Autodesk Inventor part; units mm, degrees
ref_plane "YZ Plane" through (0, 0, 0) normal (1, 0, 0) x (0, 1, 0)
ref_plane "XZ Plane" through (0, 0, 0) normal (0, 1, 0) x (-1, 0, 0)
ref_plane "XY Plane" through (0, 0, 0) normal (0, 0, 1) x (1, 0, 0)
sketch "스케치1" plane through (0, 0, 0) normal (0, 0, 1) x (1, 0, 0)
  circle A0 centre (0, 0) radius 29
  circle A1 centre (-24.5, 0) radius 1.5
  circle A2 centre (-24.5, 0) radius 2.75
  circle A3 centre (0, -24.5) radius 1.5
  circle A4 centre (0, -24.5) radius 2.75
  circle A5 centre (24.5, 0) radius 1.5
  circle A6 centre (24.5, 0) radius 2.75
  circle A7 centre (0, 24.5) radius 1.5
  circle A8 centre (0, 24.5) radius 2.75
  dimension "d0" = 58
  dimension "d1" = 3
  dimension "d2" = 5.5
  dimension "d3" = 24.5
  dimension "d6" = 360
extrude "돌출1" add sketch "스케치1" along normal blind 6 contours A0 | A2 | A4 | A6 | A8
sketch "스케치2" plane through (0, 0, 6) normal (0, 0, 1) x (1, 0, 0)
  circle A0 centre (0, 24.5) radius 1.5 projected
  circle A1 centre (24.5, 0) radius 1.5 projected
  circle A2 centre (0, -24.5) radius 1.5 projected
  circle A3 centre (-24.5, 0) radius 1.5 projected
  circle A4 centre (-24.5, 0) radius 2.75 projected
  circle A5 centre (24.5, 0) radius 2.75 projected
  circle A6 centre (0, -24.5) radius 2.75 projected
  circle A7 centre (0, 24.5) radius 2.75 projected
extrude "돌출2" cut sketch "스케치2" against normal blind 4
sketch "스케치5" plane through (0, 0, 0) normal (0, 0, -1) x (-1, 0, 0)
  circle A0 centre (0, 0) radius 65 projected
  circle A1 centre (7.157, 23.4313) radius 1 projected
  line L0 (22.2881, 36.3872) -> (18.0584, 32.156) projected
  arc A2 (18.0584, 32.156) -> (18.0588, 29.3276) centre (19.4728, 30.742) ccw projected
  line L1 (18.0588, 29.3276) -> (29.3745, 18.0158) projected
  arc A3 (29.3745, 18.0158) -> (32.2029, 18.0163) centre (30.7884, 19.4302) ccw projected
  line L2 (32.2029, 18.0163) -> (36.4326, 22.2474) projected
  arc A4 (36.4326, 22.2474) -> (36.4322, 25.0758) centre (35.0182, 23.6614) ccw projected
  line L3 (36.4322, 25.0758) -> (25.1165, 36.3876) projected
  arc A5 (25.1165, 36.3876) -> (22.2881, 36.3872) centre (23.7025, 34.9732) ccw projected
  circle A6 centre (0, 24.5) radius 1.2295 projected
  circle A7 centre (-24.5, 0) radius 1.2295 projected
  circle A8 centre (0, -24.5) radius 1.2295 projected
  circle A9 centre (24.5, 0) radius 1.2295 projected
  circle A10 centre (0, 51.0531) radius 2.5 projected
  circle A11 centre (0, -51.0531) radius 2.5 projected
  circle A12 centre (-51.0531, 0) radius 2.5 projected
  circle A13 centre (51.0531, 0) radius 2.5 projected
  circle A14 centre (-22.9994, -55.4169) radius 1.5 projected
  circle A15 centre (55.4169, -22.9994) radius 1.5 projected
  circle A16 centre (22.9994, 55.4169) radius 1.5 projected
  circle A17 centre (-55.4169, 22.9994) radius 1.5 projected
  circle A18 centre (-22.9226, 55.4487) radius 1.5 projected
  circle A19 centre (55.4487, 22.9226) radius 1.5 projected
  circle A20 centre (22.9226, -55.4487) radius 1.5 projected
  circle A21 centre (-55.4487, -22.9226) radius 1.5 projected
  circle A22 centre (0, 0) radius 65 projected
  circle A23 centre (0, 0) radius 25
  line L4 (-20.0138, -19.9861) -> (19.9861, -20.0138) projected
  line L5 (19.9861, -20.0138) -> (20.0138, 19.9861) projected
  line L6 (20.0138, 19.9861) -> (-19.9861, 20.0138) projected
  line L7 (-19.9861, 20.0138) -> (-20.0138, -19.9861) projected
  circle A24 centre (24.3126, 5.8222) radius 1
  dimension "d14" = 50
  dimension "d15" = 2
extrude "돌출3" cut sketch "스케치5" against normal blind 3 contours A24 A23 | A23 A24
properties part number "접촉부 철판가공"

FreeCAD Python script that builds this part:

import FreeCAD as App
import Part
import Sketcher
Q = App.Units.Quantity

doc = App.newDocument("Part")
params = doc.addObject("Spreadsheet::Sheet", "Params")
for row, (alias, value) in enumerate([
    ("sketch1_diameter", "58 mm"),
    ("sketch1_diameter2", "3 mm"),
    ("pad1_length", "6 mm"),
    ("sketch2_diameter", "3 mm"),
    ("sketch2_diameter2", "5.5 mm"),
    ("pocket1_length", "4 mm"),
    ("sketch3_diameter", "2 mm"),
    ("pocket2_length", "3 mm"),
], start=1):
    params.set(f"A{row}", alias)
    params.set(f"B{row}", "=" + value)
    params.setAlias(f"B{row}", alias)

body = doc.addObject("PartDesign::Body", "Body")

# Sketch on XY plane
sketch1 = body.newObject("Sketcher::SketchObject", "Sketch")
sketch1.AttachmentSupport = (doc.getObject("XY_Plane"), [""])
sketch1.MapMode = "FlatFace"
sketch1.addGeometry([
    Part.Circle(App.Vector(0, 0, 0), App.Vector(0, 0, 1), 29),  # 0
    Part.Circle(App.Vector(0, -24.5, 0), App.Vector(0, 0, 1), 1.5),  # 1
    Part.Circle(App.Vector(-24.5, 0, 0), App.Vector(0, 0, 1), 1.5),  # 2
    Part.Circle(App.Vector(24.5, 0, 0), App.Vector(0, 0, 1), 1.5),  # 3
    Part.Circle(App.Vector(0, 24.5, 0), App.Vector(0, 0, 1), 1.5),  # 4
], False)
sketch1.addConstraint([
    Sketcher.Constraint("Coincident", 0, 3, -1, 1),
    Sketcher.Constraint("Equal", 1, 2),
    Sketcher.Constraint("Equal", 2, 3),
    Sketcher.Constraint("Equal", 3, 4),
    Sketcher.Constraint("Symmetric", 2, 3, 3, 3, -1, 1),
    Sketcher.Constraint("Symmetric", 1, 3, 4, 3, -1, 1),
    Sketcher.Constraint("PointOnObject", 1, 3, -2),
    Sketcher.Constraint("PointOnObject", 2, 3, -1),
    Sketcher.Constraint("Diameter", 0, Q("58 mm")),
    Sketcher.Constraint("Diameter", 1, Q("3 mm")),
    Sketcher.Constraint("DistanceY", 1, 3, -1, 1, Q("24.5 mm")),
    Sketcher.Constraint("DistanceX", 2, 3, -1, 1, Q("24.5 mm")),
])
sketch1.setExpression("Constraints[8]", "Params.sketch1_diameter")
sketch1.setExpression("Constraints[9]", "Params.sketch1_diameter2")
pad1 = body.newObject("PartDesign::Pad", "Pad")
pad1.Profile = sketch1
pad1.setExpression("Length", "Params.pad1_length")

# Sketch on XY plane
sketch2 = body.newObject("Sketcher::SketchObject", "Sketch001")
sketch2.AttachmentSupport = (doc.getObject("XY_Plane"), [""])
sketch2.MapMode = "FlatFace"
sketch2.AttachmentOffset = App.Placement(App.Vector(0, 0, 6), App.Rotation())
sketch2.addGeometry([
    Part.Circle(App.Vector(-24.5, 0, 0), App.Vector(0, 0, 1), 2.8),  # 0
    Part.Circle(App.Vector(-24.5, 0, 0), App.Vector(0, 0, 1), 1.5),  # 1
    Part.Circle(App.Vector(24.5, 0, 0), App.Vector(0, 0, 1), 2.8),  # 2
    Part.Circle(App.Vector(24.5, 0, 0), App.Vector(0, 0, 1), 1.5),  # 3
    Part.Circle(App.Vector(0, -24.5, 0), App.Vector(0, 0, 1), 2.8),  # 4
    Part.Circle(App.Vector(0, -24.5, 0), App.Vector(0, 0, 1), 1.5),  # 5
    Part.Circle(App.Vector(0, 24.5, 0), App.Vector(0, 0, 1), 2.8),  # 6
    Part.Circle(App.Vector(0, 24.5, 0), App.Vector(0, 0, 1), 1.5),  # 7
], False)
sketch2.addConstraint([
    Sketcher.Constraint("Coincident", 1, 3, 0, 3),
    Sketcher.Constraint("Coincident", 3, 3, 2, 3),
    Sketcher.Constraint("Coincident", 5, 3, 4, 3),
    Sketcher.Constraint("Coincident", 7, 3, 6, 3),
    Sketcher.Constraint("Equal", 0, 2),
    Sketcher.Constraint("Equal", 1, 3),
    Sketcher.Constraint("Equal", 2, 4),
    Sketcher.Constraint("Equal", 3, 5),
    Sketcher.Constraint("Equal", 4, 6),
    Sketcher.Constraint("Equal", 5, 7),
    Sketcher.Constraint("Symmetric", 0, 3, 2, 3, -1, 1),
    Sketcher.Constraint("Symmetric", 4, 3, 6, 3, -1, 1),
    Sketcher.Constraint("PointOnObject", 0, 3, -1),
    Sketcher.Constraint("PointOnObject", 4, 3, -2),
    Sketcher.Constraint("Diameter", 1, Q("3 mm")),
    Sketcher.Constraint("Diameter", 0, Q("5.5 mm")),
    Sketcher.Constraint("DistanceX", 0, 3, 2, 3, Q("49 mm")),
    Sketcher.Constraint("DistanceY", 4, 3, 6, 3, Q("49 mm")),
])
sketch2.setExpression("Constraints[14]", "Params.sketch2_diameter")
sketch2.setExpression("Constraints[15]", "Params.sketch2_diameter2")
pocket1 = body.newObject("PartDesign::Pocket", "Pocket")
pocket1.Profile = sketch2
pocket1.setExpression("Length", "Params.pocket1_length")

# Sketch on XY plane
sketch3 = body.newObject("Sketcher::SketchObject", "Sketch002")
sketch3.AttachmentSupport = (doc.getObject("XY_Plane"), [""])
sketch3.MapMode = "FlatFace"
sketch3.addGeometry(Part.Circle(App.Vector(-24.3, 5.8, 0), App.Vector(0, 0, 1), 1), False)
sketch3.addConstraint([
    Sketcher.Constraint("Diameter", 0, Q("2 mm")),
    Sketcher.Constraint("DistanceX", 0, 3, -1, 1, Q("24.3126 mm")),
    Sketcher.Constraint("DistanceY", -1, 1, 0, 3, Q("5.8222 mm")),
])
sketch3.setExpression("Constraints[0]", "Params.sketch3_diameter")
pocket2 = body.newObject("PartDesign::Pocket", "Pocket001")
pocket2.Profile = sketch3
pocket2.setExpression("Length", "Params.pocket2_length")
pocket2.Reversed = True

doc.recompute()
